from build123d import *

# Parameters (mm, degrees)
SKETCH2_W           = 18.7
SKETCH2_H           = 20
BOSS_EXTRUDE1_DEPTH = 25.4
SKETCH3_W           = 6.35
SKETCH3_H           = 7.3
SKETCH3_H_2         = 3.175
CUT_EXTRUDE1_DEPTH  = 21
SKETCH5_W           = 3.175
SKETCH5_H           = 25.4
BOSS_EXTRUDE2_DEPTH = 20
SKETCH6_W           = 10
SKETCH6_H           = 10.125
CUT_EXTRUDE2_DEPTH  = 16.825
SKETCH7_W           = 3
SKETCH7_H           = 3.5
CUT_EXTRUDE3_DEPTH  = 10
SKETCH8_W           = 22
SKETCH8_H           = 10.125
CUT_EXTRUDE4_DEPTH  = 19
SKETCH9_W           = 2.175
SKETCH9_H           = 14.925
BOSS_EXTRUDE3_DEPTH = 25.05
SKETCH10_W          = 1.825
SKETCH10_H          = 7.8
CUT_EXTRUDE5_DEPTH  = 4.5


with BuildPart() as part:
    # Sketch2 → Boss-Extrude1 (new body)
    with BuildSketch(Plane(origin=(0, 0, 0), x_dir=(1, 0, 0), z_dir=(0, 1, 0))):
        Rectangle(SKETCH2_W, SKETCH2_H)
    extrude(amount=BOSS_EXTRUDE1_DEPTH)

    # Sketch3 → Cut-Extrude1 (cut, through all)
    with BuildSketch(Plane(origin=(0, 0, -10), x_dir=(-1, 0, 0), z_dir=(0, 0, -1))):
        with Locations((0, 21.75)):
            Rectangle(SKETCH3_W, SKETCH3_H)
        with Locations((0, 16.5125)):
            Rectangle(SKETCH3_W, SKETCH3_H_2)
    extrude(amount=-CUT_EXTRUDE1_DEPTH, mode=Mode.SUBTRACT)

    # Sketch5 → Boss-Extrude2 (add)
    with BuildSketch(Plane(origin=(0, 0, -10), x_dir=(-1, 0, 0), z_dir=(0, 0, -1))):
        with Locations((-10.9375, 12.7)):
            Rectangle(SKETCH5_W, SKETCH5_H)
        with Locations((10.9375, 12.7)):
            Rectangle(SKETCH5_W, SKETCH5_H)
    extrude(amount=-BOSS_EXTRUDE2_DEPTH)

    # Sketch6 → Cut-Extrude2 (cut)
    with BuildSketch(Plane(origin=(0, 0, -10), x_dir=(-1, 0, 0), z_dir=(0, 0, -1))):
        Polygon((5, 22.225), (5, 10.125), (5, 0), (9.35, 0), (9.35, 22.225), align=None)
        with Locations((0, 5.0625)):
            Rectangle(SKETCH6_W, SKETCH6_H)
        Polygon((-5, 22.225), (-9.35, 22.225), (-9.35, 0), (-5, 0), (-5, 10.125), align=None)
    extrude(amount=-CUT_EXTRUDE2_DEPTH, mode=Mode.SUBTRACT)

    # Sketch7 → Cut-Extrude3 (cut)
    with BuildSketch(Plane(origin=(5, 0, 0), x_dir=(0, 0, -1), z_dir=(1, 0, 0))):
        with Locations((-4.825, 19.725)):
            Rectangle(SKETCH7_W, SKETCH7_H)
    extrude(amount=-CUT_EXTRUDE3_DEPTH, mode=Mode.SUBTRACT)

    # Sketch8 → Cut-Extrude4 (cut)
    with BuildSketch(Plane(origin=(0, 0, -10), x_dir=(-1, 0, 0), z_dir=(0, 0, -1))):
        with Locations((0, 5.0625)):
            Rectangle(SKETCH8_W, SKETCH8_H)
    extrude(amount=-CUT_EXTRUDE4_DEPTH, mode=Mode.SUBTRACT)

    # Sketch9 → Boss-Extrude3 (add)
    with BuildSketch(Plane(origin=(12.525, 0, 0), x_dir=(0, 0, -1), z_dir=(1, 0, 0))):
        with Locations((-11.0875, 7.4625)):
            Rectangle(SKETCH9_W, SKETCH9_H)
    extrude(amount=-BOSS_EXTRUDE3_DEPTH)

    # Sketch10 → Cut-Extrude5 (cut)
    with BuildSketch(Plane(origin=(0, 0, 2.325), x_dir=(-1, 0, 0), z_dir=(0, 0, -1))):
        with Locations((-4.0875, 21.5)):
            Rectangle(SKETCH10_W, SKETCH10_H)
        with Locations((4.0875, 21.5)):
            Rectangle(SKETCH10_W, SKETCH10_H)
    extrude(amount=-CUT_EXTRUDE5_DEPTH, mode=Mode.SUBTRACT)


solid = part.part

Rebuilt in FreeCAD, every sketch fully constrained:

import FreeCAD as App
import Part
import Sketcher
from FreeCAD import Vector


def add_polygon(sketch, points):
    """Adds a closed chain of lines whose ends are joined by coincident constraints."""
    first, n = sketch.GeometryCount, len(points)
    for a, b in zip(points, points[1:] + points[:1]):
        sketch.addGeometry(Part.LineSegment(App.Vector(*a, 0), App.Vector(*b, 0)), False)
    for i in range(n):
        sketch.addConstraint(Sketcher.Constraint("Coincident", first + i, 2, first + (i + 1) % n, 1))

doc = App.newDocument("Part")
body = doc.addObject("PartDesign::Body", "Body")

# Sketch on XZ plane
sketch1 = body.newObject("Sketcher::SketchObject", "Sketch")
sketch1.AttachmentSupport = (doc.getObject("XZ_Plane"), [""])
sketch1.MapMode = "FlatFace"
add_polygon(sketch1, [(-9, -10), (-9, 10), (9, 10), (9, -10)])  # lines 0-3
sketch1.addConstraint(Sketcher.Constraint("Vertical", 0))
sketch1.addConstraint(Sketcher.Constraint("Horizontal", 1))
sketch1.addConstraint(Sketcher.Constraint("Vertical", 2))
sketch1.addConstraint(Sketcher.Constraint("Horizontal", 3))
sketch1.addConstraint(Sketcher.Constraint("Symmetric", 0, 2, 2, 2, -1, 1))
sketch1.addConstraint(Sketcher.Constraint("DistanceY", 0, 1, 0, 2, 20.0))
sketch1.addConstraint(Sketcher.Constraint("DistanceX", 1, 1, 1, 2, 18.7))
pad1 = body.newObject("PartDesign::Pad", "Pad")
pad1.Profile = sketch1
pad1.Length = 25.4
pad1.Reversed = True

# Sketch on XY plane
sketch2 = body.newObject("Sketcher::SketchObject", "Sketch001")
sketch2.AttachmentSupport = (doc.getObject("XY_Plane"), [""])
sketch2.MapMode = "FlatFace"
sketch2.AttachmentOffset = App.Placement(Vector(0, 0, -10), App.Rotation())
add_polygon(sketch2, [(3, 25), (3, 15), (-3, 15), (-3, 25)])  # lines 0-3
sketch2.addConstraint(Sketcher.Constraint("Vertical", 0))
sketch2.addConstraint(Sketcher.Constraint("Horizontal", 1))
sketch2.addConstraint(Sketcher.Constraint("Vertical", 2))
sketch2.addConstraint(Sketcher.Constraint("Horizontal", 3))
sketch2.addConstraint(Sketcher.Constraint("DistanceX", 1, 2, 1, 1, 6.35))
sketch2.addConstraint(Sketcher.Constraint("DistanceY", -1, 1, 2, 2, 25.4))
sketch2.addConstraint(Sketcher.Constraint("DistanceY", 0, 2, 0, 1, 10.475))
sketch2.addConstraint(Sketcher.Constraint("DistanceX", -1, 1, 0, 2, 3.175))
pocket1 = body.newObject("PartDesign::Pocket", "Pocket")
pocket1.Profile = sketch2
pocket1.Type = "ThroughAll"
pocket1.Reversed = True

# Sketch on XY plane
sketch3 = body.newObject("Sketcher::SketchObject", "Sketch002")
sketch3.AttachmentSupport = (doc.getObject("XY_Plane"), [""])
sketch3.MapMode = "FlatFace"
sketch3.AttachmentOffset = App.Placement(Vector(0, 0, -10), App.Rotation())
add_polygon(sketch3, [(12.5, 25.4), (12.5, 0), (9.3, 0), (9.3, 25.4)])  # lines 0-3
add_polygon(sketch3, [(-9.3, 25.4), (-9.3, 0), (-12.5, 0), (-12.5, 25.4)])  # lines 4-7
sketch3.addConstraint(Sketcher.Constraint("Vertical", 0))
sketch3.addConstraint(Sketcher.Constraint("Horizontal", 1))
sketch3.addConstraint(Sketcher.Constraint("Vertical", 2))
sketch3.addConstraint(Sketcher.Constraint("Horizontal", 3))
sketch3.addConstraint(Sketcher.Constraint("Vertical", 4))
sketch3.addConstraint(Sketcher.Constraint("Horizontal", 5))
sketch3.addConstraint(Sketcher.Constraint("Vertical", 6))
sketch3.addConstraint(Sketcher.Constraint("Horizontal", 7))
sketch3.addConstraint(Sketcher.Constraint("Symmetric", 1, 2, 4, 2, -1, 1))
sketch3.addConstraint(Sketcher.Constraint("Symmetric", 0, 2, 5, 2, -2))
sketch3.addConstraint(Sketcher.Constraint("Horizontal", 3, 2, 6, 2))
sketch3.addConstraint(Sketcher.Constraint("DistanceY", 0, 2, 0, 1, 25.4))
sketch3.addConstraint(Sketcher.Constraint("DistanceX", 4, 2, 1, 2, 18.7))
sketch3.addConstraint(Sketcher.Constraint("DistanceX", 1, 2, 1, 1, 3.175))
pad2 = body.newObject("PartDesign::Pad", "Pad001")
pad2.Profile = sketch3
pad2.Length = 20

# Sketch on XY plane
sketch4 = body.newObject("Sketcher::SketchObject", "Sketch003")
sketch4.AttachmentSupport = (doc.getObject("XY_Plane"), [""])
sketch4.MapMode = "FlatFace"
sketch4.AttachmentOffset = App.Placement(Vector(0, 0, -10), App.Rotation())
add_polygon(sketch4, [(-5, 22.2), (-5, 10.1), (5, 10.1), (5, 22.2), (9.3, 22.2), (9.3, 0), (-9.3, 0), (-9.3, 22.2)])  # lines 0-7
sketch4.addConstraint(Sketcher.Constraint("Vertical", 0))
sketch4.addConstraint(Sketcher.Constraint("Horizontal", 1))
sketch4.addConstraint(Sketcher.Constraint("Vertical", 2))
sketch4.addConstraint(Sketcher.Constraint("Horizontal", 3))
sketch4.addConstraint(Sketcher.Constraint("Vertical", 4))
sketch4.addConstraint(Sketcher.Constraint("Horizontal", 5))
sketch4.addConstraint(Sketcher.Constraint("Vertical", 6))
sketch4.addConstraint(Sketcher.Constraint("Horizontal", 7))
sketch4.addConstraint(Sketcher.Constraint("Symmetric", 4, 2, 5, 2, -1, 1))
sketch4.addConstraint(Sketcher.Constraint("Symmetric", 2, 2, 7, 2, -2))
sketch4.addConstraint(Sketcher.Constraint("DistanceX", 1, 1, 1, 2, 10.0))
sketch4.addConstraint(Sketcher.Constraint("DistanceX", 5, 2, 5, 1, 18.7))
sketch4.addConstraint(Sketcher.Constraint("DistanceY", 0, 2, 0, 1, 12.1))
sketch4.addConstraint(Sketcher.Constraint("DistanceY", 4, 2, 4, 1, 22.225))
pocket2 = body.newObject("PartDesign::Pocket", "Pocket001")
pocket2.Profile = sketch4
pocket2.Length = 16.825
pocket2.Reversed = True

# Sketch on YZ plane
sketch5 = body.newObject("Sketcher::SketchObject", "Sketch004")
sketch5.AttachmentSupport = (doc.getObject("YZ_Plane"), [""])
sketch5.MapMode = "FlatFace"
sketch5.AttachmentOffset = App.Placement(Vector(0, 0, 5), App.Rotation())
add_polygon(sketch5, [(21.5, 6.3), (18, 6.3), (18, 3.3), (21.5, 3.3)])  # lines 0-3
sketch5.addConstraint(Sketcher.Constraint("Horizontal", 0))
sketch5.addConstraint(Sketcher.Constraint("Vertical", 1))
sketch5.addConstraint(Sketcher.Constraint("Horizontal", 2))
sketch5.addConstraint(Sketcher.Constraint("Vertical", 3))
sketch5.addConstraint(Sketcher.Constraint("DistanceY", 1, 2, 1, 1, 3.0))
sketch5.addConstraint(Sketcher.Constraint("DistanceX", 0, 2, 0, 1, 3.5))
sketch5.addConstraint(Sketcher.Constraint("DistanceX", -1, 1, 0, 2, 17.975))
sketch5.addConstraint(Sketcher.Constraint("DistanceY", -1, 1, 0, 2, 6.325))
pocket3 = body.newObject("PartDesign::Pocket", "Pocket002")
pocket3.Profile = sketch5
pocket3.Length = 10

# Sketch on XY plane
sketch6 = body.newObject("Sketcher::SketchObject", "Sketch005")
sketch6.AttachmentSupport = (doc.getObject("XY_Plane"), [""])
sketch6.MapMode = "FlatFace"
sketch6.AttachmentOffset = App.Placement(Vector(0, 0, -10), App.Rotation())
add_polygon(sketch6, [(11, 10), (11, 0), (-11, 0), (-11, 10)])  # lines 0-3
sketch6.addConstraint(Sketcher.Constraint("Vertical", 0))
sketch6.addConstraint(Sketcher.Constraint("Horizontal", 1))
sketch6.addConstraint(Sketcher.Constraint("Vertical", 2))
sketch6.addConstraint(Sketcher.Constraint("Horizontal", 3))
sketch6.addConstraint(Sketcher.Constraint("Symmetric", 0, 2, 1, 2, -1, 1))
sketch6.addConstraint(Sketcher.Constraint("DistanceX", 1, 2, 1, 1, 22.0))
sketch6.addConstraint(Sketcher.Constraint("DistanceY", 0, 2, 0, 1, 10.125))
pocket4 = body.newObject("PartDesign::Pocket", "Pocket003")
pocket4.Profile = sketch6
pocket4.Length = 19
pocket4.Reversed = True

# Sketch on YZ plane
sketch7 = body.newObject("Sketcher::SketchObject", "Sketch006")
sketch7.AttachmentSupport = (doc.getObject("YZ_Plane"), [""])
sketch7.MapMode = "FlatFace"
sketch7.AttachmentOffset = App.Placement(Vector(0, 0, 12.525), App.Rotation())
add_polygon(sketch7, [(14.9, 12.2), (0, 12.2), (0, 10), (14.9, 10)])  # lines 0-3
sketch7.addConstraint(Sketcher.Constraint("Horizontal", 0))
sketch7.addConstraint(Sketcher.Constraint("Vertical", 1))
sketch7.addConstraint(Sketcher.Constraint("Horizontal", 2))
sketch7.addConstraint(Sketcher.Constraint("Vertical", 3))
sketch7.addConstraint(Sketcher.Constraint("PointOnObject", 0, 2, -2))
sketch7.addConstraint(Sketcher.Constraint("DistanceY", -1, 1, 1, 2, 10.0))
sketch7.addConstraint(Sketcher.Constraint("DistanceX", 0, 2, 0, 1, 14.925))
sketch7.addConstraint(Sketcher.Constraint("DistanceY", 1, 2, 1, 1, 2.175))
pad3 = body.newObject("PartDesign::Pad", "Pad002")
pad3.Profile = sketch7
pad3.Length = 25.05
pad3.Reversed = True

# Sketch on XY plane
sketch8 = body.newObject("Sketcher::SketchObject", "Sketch007")
sketch8.AttachmentSupport = (doc.getObject("XY_Plane"), [""])
sketch8.MapMode = "FlatFace"
sketch8.AttachmentOffset = App.Placement(Vector(0, 0, 2.325), App.Rotation())
add_polygon(sketch8, [(5, 25.4), (5, 17.6), (3.2, 17.6), (3.2, 25.4)])  # lines 0-3
add_polygon(sketch8, [(-3.2, 25.4), (-3.2, 17.6), (-5, 17.6), (-5, 25.4)])  # lines 4-7
sketch8.addConstraint(Sketcher.Constraint("Vertical", 0))
sketch8.addConstraint(Sketcher.Constraint("Horizontal", 1))
sketch8.addConstraint(Sketcher.Constraint("Vertical", 2))
sketch8.addConstraint(Sketcher.Constraint("Horizontal", 3))
sketch8.addConstraint(Sketcher.Constraint("Vertical", 4))
sketch8.addConstraint(Sketcher.Constraint("Horizontal", 5))
sketch8.addConstraint(Sketcher.Constraint("Vertical", 6))
sketch8.addConstraint(Sketcher.Constraint("Horizontal", 7))
sketch8.addConstraint(Sketcher.Constraint("Symmetric", 1, 2, 4, 2, -2))
sketch8.addConstraint(Sketcher.Constraint("Symmetric", 3, 2, 6, 2, -2))
sketch8.addConstraint(Sketcher.Constraint("DistanceY", 0, 2, 0, 1, 7.8))
sketch8.addConstraint(Sketcher.Constraint("DistanceX", -1, 1, 0, 2, 5.0))
sketch8.addConstraint(Sketcher.Constraint("DistanceY", -1, 1, 0, 2, 17.6))
sketch8.addConstraint(Sketcher.Constraint("DistanceX", 1, 2, 1, 1, 1.825))
pocket5 = body.newObject("PartDesign::Pocket", "Pocket004")
pocket5.Profile = sketch8
pocket5.Length = 4.5
pocket5.Reversed = True

doc.recompute()
